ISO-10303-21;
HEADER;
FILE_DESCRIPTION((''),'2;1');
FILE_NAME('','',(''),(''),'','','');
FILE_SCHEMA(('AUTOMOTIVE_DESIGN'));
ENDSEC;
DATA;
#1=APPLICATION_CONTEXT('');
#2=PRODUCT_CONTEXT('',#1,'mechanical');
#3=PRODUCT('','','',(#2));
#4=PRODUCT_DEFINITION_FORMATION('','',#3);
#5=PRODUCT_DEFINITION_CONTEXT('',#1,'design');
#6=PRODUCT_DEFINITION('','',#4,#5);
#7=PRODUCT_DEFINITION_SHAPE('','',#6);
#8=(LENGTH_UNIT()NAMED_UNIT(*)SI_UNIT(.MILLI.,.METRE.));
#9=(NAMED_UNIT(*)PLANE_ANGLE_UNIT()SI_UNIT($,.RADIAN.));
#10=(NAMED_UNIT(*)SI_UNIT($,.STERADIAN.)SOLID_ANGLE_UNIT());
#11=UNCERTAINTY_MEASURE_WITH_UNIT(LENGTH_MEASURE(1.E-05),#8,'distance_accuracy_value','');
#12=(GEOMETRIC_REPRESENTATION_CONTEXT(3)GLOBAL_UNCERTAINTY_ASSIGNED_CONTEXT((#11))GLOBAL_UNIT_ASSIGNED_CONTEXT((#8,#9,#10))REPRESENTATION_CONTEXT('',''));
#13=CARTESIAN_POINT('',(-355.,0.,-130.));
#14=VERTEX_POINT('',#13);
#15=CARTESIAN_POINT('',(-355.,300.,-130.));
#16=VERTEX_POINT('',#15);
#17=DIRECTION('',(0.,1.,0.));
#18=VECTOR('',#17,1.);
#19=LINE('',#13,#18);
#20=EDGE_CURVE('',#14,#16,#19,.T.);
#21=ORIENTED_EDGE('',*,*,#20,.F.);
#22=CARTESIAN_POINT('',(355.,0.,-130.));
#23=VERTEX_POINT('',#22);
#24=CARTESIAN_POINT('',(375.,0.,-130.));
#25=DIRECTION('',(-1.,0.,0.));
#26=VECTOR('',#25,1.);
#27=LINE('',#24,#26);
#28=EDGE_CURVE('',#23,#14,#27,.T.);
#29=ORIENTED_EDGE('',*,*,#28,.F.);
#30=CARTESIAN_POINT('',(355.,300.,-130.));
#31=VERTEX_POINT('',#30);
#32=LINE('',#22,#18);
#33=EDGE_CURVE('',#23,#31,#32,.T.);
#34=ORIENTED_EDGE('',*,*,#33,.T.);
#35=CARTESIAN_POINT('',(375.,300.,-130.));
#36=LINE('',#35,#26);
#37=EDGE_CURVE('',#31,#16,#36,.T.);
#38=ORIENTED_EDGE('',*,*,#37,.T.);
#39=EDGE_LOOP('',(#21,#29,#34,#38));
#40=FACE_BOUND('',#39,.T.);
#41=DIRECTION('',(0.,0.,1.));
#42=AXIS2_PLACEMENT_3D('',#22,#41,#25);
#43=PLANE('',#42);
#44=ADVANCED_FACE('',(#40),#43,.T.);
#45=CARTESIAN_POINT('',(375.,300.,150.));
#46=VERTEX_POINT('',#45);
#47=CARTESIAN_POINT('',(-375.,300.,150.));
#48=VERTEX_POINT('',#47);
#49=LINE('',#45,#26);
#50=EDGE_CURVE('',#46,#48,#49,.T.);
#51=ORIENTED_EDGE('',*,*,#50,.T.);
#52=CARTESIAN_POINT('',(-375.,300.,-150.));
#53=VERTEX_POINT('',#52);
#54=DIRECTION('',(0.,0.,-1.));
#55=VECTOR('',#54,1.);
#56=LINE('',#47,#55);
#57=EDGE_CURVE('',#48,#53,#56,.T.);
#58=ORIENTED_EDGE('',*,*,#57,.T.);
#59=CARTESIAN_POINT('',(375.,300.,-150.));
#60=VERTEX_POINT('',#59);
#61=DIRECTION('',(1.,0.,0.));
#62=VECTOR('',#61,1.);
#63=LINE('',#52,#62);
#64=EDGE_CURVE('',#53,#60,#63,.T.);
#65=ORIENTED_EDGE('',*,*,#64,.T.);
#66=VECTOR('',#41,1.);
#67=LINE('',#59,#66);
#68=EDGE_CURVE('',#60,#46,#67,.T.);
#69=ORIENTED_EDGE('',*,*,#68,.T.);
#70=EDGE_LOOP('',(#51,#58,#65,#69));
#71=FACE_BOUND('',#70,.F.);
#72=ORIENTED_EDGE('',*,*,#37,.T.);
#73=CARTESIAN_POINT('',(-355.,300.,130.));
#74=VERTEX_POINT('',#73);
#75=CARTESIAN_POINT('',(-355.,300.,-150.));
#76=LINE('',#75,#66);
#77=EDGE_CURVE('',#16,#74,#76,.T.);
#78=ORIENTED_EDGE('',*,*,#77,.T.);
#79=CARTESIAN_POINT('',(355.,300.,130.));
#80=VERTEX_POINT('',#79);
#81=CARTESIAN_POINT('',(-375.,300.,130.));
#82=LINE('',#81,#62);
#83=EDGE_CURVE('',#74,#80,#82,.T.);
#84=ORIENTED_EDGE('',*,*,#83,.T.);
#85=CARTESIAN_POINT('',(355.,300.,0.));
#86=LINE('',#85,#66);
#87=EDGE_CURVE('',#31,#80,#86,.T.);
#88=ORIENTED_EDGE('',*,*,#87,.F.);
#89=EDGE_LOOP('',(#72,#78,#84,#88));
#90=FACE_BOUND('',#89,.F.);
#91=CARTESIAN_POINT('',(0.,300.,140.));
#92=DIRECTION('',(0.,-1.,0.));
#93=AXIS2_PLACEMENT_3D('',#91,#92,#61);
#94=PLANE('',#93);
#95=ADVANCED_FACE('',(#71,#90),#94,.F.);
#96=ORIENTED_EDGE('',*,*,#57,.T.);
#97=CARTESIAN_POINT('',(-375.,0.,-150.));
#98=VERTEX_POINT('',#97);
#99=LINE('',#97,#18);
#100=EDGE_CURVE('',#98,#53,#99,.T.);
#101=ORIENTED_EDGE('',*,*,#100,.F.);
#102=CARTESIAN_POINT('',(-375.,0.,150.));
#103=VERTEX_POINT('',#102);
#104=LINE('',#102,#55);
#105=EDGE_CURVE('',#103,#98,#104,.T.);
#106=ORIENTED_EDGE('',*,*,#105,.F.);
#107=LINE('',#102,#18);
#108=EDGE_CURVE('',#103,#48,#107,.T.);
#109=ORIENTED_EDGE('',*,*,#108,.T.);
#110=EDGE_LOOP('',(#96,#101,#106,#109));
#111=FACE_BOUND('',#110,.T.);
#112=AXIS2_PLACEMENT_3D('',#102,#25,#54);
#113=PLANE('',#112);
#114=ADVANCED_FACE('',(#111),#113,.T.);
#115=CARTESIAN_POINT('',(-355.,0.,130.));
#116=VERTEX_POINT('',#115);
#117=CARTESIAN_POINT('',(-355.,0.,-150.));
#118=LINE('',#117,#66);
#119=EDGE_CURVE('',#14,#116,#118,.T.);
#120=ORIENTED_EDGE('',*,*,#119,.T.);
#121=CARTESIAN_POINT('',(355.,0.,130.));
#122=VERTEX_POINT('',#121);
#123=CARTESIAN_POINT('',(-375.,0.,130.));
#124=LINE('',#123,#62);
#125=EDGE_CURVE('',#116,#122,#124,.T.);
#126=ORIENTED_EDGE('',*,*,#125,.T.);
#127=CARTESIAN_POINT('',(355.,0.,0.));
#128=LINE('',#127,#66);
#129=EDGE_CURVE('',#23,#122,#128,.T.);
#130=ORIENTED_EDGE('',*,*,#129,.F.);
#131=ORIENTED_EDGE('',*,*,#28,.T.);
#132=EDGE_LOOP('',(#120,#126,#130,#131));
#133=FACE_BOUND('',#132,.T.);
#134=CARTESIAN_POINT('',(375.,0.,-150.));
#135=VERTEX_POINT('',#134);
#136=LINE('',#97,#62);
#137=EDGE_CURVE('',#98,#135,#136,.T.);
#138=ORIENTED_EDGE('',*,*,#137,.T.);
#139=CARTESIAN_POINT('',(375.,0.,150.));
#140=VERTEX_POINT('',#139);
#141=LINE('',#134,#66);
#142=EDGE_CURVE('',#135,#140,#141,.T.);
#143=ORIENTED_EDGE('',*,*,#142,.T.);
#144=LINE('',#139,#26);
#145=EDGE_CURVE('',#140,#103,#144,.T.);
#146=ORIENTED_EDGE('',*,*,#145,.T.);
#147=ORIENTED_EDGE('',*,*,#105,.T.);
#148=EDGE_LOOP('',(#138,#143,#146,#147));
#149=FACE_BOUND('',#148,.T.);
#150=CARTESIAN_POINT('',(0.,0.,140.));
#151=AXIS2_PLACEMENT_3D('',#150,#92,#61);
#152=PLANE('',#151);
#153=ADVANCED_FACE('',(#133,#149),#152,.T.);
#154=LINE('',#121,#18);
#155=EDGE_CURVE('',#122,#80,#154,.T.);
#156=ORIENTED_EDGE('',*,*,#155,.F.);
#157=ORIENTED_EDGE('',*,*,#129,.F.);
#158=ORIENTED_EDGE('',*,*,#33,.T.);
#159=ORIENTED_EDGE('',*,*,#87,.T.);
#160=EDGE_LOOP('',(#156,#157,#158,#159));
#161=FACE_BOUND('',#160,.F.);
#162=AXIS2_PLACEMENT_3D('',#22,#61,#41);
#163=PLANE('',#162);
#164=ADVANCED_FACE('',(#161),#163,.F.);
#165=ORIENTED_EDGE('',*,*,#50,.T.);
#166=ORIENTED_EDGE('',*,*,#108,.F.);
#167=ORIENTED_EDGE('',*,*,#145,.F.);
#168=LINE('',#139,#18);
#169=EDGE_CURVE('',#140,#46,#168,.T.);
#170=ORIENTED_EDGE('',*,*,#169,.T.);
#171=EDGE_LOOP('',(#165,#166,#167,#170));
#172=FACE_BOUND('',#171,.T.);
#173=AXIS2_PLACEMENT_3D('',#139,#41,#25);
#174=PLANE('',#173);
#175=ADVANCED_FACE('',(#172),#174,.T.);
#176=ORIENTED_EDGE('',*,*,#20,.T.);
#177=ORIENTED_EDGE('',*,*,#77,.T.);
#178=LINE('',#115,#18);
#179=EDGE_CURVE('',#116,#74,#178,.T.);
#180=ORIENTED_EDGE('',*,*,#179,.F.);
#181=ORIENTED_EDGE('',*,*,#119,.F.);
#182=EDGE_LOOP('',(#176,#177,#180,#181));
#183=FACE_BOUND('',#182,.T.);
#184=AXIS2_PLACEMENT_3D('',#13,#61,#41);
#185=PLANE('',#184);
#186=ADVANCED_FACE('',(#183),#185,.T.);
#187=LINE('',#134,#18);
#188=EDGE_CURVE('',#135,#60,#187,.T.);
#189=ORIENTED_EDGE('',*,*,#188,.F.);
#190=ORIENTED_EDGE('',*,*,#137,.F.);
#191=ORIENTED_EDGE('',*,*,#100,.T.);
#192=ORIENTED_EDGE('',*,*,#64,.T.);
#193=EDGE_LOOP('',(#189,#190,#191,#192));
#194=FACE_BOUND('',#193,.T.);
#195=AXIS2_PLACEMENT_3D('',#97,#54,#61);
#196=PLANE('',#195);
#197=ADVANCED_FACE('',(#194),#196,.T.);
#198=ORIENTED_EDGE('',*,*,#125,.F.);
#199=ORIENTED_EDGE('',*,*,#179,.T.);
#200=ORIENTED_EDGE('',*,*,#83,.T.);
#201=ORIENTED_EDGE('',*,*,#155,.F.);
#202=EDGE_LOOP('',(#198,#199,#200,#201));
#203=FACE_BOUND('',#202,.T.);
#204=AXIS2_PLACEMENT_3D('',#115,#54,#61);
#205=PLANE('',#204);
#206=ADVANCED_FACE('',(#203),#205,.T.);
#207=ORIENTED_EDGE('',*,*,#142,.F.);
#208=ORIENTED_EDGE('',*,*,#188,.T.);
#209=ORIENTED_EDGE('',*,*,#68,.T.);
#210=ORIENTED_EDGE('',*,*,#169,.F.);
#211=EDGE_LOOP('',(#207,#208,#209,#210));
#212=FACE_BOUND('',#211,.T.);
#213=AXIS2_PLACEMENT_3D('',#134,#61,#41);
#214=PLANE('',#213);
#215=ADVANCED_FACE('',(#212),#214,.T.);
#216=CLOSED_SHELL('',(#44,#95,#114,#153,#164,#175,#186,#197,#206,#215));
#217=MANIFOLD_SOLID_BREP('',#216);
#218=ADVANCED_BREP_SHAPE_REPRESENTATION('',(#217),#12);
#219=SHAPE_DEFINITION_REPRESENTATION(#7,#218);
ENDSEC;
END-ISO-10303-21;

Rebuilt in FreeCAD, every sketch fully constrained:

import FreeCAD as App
import Part
import Sketcher

V = App.Vector

doc = App.newDocument("Part")
body = doc.addObject("PartDesign::Body", "Body")

sketch1 = body.newObject("Sketcher::SketchObject", "Sketch")
sketch1.AttachmentSupport = (doc.getObject("XZ_Plane"), [""])
sketch1.MapMode = "FlatFace"
sketch1.addGeometry(Part.LineSegment(V(375, -150, 0), V(375, 150, 0)), False)
sketch1.addGeometry(Part.LineSegment(V(375, 150, 0), V(-375, 150, 0)), False)
sketch1.addGeometry(Part.LineSegment(V(-375, 150, 0), V(-375, -150, 0)), False)
sketch1.addGeometry(Part.LineSegment(V(-375, -150, 0), V(375, -150, 0)), False)
sketch1.addGeometry(Part.LineSegment(V(-355, 130, 0), V(355, 130, 0)), False)
sketch1.addGeometry(Part.LineSegment(V(355, 130, 0), V(355, -130, 0)), False)
sketch1.addGeometry(Part.LineSegment(V(355, -130, 0), V(-355, -130, 0)), False)
sketch1.addGeometry(Part.LineSegment(V(-355, -130, 0), V(-355, 130, 0)), False)
sketch1.addConstraint(Sketcher.Constraint("Coincident", 0, 2, 1, 1))
sketch1.addConstraint(Sketcher.Constraint("Coincident", 1, 2, 2, 1))
sketch1.addConstraint(Sketcher.Constraint("Coincident", 2, 2, 3, 1))
sketch1.addConstraint(Sketcher.Constraint("Coincident", 3, 2, 0, 1))
sketch1.addConstraint(Sketcher.Constraint("Coincident", 4, 2, 5, 1))
sketch1.addConstraint(Sketcher.Constraint("Coincident", 5, 2, 6, 1))
sketch1.addConstraint(Sketcher.Constraint("Coincident", 6, 2, 7, 1))
sketch1.addConstraint(Sketcher.Constraint("Coincident", 7, 2, 4, 1))
sketch1.addConstraint(Sketcher.Constraint("Vertical", 0))
sketch1.addConstraint(Sketcher.Constraint("Horizontal", 1))
sketch1.addConstraint(Sketcher.Constraint("Vertical", 2))
sketch1.addConstraint(Sketcher.Constraint("Horizontal", 3))
sketch1.addConstraint(Sketcher.Constraint("Horizontal", 4))
sketch1.addConstraint(Sketcher.Constraint("Vertical", 5))
sketch1.addConstraint(Sketcher.Constraint("Horizontal", 6))
sketch1.addConstraint(Sketcher.Constraint("Vertical", 7))
sketch1.addConstraint(Sketcher.Constraint("Symmetric", 0, 2, 2, 2, -1, 1))
sketch1.addConstraint(Sketcher.Constraint("Symmetric", 4, 2, 6, 2, -1, 1))
sketch1.addConstraint(Sketcher.Constraint("DistanceX", 1, 2, 1, 1, 750.0))
sketch1.addConstraint(Sketcher.Constraint("DistanceX", 4, 1, 4, 2, 710.0))
sketch1.addConstraint(Sketcher.Constraint("DistanceY", 0, 1, 0, 2, 300.0))
sketch1.addConstraint(Sketcher.Constraint("DistanceY", 5, 2, 5, 1, 260.0))
pad1 = body.newObject("PartDesign::Pad", "Pad")
pad1.Profile = sketch1
pad1.Length = 300
pad1.Reversed = True

doc.recompute()
